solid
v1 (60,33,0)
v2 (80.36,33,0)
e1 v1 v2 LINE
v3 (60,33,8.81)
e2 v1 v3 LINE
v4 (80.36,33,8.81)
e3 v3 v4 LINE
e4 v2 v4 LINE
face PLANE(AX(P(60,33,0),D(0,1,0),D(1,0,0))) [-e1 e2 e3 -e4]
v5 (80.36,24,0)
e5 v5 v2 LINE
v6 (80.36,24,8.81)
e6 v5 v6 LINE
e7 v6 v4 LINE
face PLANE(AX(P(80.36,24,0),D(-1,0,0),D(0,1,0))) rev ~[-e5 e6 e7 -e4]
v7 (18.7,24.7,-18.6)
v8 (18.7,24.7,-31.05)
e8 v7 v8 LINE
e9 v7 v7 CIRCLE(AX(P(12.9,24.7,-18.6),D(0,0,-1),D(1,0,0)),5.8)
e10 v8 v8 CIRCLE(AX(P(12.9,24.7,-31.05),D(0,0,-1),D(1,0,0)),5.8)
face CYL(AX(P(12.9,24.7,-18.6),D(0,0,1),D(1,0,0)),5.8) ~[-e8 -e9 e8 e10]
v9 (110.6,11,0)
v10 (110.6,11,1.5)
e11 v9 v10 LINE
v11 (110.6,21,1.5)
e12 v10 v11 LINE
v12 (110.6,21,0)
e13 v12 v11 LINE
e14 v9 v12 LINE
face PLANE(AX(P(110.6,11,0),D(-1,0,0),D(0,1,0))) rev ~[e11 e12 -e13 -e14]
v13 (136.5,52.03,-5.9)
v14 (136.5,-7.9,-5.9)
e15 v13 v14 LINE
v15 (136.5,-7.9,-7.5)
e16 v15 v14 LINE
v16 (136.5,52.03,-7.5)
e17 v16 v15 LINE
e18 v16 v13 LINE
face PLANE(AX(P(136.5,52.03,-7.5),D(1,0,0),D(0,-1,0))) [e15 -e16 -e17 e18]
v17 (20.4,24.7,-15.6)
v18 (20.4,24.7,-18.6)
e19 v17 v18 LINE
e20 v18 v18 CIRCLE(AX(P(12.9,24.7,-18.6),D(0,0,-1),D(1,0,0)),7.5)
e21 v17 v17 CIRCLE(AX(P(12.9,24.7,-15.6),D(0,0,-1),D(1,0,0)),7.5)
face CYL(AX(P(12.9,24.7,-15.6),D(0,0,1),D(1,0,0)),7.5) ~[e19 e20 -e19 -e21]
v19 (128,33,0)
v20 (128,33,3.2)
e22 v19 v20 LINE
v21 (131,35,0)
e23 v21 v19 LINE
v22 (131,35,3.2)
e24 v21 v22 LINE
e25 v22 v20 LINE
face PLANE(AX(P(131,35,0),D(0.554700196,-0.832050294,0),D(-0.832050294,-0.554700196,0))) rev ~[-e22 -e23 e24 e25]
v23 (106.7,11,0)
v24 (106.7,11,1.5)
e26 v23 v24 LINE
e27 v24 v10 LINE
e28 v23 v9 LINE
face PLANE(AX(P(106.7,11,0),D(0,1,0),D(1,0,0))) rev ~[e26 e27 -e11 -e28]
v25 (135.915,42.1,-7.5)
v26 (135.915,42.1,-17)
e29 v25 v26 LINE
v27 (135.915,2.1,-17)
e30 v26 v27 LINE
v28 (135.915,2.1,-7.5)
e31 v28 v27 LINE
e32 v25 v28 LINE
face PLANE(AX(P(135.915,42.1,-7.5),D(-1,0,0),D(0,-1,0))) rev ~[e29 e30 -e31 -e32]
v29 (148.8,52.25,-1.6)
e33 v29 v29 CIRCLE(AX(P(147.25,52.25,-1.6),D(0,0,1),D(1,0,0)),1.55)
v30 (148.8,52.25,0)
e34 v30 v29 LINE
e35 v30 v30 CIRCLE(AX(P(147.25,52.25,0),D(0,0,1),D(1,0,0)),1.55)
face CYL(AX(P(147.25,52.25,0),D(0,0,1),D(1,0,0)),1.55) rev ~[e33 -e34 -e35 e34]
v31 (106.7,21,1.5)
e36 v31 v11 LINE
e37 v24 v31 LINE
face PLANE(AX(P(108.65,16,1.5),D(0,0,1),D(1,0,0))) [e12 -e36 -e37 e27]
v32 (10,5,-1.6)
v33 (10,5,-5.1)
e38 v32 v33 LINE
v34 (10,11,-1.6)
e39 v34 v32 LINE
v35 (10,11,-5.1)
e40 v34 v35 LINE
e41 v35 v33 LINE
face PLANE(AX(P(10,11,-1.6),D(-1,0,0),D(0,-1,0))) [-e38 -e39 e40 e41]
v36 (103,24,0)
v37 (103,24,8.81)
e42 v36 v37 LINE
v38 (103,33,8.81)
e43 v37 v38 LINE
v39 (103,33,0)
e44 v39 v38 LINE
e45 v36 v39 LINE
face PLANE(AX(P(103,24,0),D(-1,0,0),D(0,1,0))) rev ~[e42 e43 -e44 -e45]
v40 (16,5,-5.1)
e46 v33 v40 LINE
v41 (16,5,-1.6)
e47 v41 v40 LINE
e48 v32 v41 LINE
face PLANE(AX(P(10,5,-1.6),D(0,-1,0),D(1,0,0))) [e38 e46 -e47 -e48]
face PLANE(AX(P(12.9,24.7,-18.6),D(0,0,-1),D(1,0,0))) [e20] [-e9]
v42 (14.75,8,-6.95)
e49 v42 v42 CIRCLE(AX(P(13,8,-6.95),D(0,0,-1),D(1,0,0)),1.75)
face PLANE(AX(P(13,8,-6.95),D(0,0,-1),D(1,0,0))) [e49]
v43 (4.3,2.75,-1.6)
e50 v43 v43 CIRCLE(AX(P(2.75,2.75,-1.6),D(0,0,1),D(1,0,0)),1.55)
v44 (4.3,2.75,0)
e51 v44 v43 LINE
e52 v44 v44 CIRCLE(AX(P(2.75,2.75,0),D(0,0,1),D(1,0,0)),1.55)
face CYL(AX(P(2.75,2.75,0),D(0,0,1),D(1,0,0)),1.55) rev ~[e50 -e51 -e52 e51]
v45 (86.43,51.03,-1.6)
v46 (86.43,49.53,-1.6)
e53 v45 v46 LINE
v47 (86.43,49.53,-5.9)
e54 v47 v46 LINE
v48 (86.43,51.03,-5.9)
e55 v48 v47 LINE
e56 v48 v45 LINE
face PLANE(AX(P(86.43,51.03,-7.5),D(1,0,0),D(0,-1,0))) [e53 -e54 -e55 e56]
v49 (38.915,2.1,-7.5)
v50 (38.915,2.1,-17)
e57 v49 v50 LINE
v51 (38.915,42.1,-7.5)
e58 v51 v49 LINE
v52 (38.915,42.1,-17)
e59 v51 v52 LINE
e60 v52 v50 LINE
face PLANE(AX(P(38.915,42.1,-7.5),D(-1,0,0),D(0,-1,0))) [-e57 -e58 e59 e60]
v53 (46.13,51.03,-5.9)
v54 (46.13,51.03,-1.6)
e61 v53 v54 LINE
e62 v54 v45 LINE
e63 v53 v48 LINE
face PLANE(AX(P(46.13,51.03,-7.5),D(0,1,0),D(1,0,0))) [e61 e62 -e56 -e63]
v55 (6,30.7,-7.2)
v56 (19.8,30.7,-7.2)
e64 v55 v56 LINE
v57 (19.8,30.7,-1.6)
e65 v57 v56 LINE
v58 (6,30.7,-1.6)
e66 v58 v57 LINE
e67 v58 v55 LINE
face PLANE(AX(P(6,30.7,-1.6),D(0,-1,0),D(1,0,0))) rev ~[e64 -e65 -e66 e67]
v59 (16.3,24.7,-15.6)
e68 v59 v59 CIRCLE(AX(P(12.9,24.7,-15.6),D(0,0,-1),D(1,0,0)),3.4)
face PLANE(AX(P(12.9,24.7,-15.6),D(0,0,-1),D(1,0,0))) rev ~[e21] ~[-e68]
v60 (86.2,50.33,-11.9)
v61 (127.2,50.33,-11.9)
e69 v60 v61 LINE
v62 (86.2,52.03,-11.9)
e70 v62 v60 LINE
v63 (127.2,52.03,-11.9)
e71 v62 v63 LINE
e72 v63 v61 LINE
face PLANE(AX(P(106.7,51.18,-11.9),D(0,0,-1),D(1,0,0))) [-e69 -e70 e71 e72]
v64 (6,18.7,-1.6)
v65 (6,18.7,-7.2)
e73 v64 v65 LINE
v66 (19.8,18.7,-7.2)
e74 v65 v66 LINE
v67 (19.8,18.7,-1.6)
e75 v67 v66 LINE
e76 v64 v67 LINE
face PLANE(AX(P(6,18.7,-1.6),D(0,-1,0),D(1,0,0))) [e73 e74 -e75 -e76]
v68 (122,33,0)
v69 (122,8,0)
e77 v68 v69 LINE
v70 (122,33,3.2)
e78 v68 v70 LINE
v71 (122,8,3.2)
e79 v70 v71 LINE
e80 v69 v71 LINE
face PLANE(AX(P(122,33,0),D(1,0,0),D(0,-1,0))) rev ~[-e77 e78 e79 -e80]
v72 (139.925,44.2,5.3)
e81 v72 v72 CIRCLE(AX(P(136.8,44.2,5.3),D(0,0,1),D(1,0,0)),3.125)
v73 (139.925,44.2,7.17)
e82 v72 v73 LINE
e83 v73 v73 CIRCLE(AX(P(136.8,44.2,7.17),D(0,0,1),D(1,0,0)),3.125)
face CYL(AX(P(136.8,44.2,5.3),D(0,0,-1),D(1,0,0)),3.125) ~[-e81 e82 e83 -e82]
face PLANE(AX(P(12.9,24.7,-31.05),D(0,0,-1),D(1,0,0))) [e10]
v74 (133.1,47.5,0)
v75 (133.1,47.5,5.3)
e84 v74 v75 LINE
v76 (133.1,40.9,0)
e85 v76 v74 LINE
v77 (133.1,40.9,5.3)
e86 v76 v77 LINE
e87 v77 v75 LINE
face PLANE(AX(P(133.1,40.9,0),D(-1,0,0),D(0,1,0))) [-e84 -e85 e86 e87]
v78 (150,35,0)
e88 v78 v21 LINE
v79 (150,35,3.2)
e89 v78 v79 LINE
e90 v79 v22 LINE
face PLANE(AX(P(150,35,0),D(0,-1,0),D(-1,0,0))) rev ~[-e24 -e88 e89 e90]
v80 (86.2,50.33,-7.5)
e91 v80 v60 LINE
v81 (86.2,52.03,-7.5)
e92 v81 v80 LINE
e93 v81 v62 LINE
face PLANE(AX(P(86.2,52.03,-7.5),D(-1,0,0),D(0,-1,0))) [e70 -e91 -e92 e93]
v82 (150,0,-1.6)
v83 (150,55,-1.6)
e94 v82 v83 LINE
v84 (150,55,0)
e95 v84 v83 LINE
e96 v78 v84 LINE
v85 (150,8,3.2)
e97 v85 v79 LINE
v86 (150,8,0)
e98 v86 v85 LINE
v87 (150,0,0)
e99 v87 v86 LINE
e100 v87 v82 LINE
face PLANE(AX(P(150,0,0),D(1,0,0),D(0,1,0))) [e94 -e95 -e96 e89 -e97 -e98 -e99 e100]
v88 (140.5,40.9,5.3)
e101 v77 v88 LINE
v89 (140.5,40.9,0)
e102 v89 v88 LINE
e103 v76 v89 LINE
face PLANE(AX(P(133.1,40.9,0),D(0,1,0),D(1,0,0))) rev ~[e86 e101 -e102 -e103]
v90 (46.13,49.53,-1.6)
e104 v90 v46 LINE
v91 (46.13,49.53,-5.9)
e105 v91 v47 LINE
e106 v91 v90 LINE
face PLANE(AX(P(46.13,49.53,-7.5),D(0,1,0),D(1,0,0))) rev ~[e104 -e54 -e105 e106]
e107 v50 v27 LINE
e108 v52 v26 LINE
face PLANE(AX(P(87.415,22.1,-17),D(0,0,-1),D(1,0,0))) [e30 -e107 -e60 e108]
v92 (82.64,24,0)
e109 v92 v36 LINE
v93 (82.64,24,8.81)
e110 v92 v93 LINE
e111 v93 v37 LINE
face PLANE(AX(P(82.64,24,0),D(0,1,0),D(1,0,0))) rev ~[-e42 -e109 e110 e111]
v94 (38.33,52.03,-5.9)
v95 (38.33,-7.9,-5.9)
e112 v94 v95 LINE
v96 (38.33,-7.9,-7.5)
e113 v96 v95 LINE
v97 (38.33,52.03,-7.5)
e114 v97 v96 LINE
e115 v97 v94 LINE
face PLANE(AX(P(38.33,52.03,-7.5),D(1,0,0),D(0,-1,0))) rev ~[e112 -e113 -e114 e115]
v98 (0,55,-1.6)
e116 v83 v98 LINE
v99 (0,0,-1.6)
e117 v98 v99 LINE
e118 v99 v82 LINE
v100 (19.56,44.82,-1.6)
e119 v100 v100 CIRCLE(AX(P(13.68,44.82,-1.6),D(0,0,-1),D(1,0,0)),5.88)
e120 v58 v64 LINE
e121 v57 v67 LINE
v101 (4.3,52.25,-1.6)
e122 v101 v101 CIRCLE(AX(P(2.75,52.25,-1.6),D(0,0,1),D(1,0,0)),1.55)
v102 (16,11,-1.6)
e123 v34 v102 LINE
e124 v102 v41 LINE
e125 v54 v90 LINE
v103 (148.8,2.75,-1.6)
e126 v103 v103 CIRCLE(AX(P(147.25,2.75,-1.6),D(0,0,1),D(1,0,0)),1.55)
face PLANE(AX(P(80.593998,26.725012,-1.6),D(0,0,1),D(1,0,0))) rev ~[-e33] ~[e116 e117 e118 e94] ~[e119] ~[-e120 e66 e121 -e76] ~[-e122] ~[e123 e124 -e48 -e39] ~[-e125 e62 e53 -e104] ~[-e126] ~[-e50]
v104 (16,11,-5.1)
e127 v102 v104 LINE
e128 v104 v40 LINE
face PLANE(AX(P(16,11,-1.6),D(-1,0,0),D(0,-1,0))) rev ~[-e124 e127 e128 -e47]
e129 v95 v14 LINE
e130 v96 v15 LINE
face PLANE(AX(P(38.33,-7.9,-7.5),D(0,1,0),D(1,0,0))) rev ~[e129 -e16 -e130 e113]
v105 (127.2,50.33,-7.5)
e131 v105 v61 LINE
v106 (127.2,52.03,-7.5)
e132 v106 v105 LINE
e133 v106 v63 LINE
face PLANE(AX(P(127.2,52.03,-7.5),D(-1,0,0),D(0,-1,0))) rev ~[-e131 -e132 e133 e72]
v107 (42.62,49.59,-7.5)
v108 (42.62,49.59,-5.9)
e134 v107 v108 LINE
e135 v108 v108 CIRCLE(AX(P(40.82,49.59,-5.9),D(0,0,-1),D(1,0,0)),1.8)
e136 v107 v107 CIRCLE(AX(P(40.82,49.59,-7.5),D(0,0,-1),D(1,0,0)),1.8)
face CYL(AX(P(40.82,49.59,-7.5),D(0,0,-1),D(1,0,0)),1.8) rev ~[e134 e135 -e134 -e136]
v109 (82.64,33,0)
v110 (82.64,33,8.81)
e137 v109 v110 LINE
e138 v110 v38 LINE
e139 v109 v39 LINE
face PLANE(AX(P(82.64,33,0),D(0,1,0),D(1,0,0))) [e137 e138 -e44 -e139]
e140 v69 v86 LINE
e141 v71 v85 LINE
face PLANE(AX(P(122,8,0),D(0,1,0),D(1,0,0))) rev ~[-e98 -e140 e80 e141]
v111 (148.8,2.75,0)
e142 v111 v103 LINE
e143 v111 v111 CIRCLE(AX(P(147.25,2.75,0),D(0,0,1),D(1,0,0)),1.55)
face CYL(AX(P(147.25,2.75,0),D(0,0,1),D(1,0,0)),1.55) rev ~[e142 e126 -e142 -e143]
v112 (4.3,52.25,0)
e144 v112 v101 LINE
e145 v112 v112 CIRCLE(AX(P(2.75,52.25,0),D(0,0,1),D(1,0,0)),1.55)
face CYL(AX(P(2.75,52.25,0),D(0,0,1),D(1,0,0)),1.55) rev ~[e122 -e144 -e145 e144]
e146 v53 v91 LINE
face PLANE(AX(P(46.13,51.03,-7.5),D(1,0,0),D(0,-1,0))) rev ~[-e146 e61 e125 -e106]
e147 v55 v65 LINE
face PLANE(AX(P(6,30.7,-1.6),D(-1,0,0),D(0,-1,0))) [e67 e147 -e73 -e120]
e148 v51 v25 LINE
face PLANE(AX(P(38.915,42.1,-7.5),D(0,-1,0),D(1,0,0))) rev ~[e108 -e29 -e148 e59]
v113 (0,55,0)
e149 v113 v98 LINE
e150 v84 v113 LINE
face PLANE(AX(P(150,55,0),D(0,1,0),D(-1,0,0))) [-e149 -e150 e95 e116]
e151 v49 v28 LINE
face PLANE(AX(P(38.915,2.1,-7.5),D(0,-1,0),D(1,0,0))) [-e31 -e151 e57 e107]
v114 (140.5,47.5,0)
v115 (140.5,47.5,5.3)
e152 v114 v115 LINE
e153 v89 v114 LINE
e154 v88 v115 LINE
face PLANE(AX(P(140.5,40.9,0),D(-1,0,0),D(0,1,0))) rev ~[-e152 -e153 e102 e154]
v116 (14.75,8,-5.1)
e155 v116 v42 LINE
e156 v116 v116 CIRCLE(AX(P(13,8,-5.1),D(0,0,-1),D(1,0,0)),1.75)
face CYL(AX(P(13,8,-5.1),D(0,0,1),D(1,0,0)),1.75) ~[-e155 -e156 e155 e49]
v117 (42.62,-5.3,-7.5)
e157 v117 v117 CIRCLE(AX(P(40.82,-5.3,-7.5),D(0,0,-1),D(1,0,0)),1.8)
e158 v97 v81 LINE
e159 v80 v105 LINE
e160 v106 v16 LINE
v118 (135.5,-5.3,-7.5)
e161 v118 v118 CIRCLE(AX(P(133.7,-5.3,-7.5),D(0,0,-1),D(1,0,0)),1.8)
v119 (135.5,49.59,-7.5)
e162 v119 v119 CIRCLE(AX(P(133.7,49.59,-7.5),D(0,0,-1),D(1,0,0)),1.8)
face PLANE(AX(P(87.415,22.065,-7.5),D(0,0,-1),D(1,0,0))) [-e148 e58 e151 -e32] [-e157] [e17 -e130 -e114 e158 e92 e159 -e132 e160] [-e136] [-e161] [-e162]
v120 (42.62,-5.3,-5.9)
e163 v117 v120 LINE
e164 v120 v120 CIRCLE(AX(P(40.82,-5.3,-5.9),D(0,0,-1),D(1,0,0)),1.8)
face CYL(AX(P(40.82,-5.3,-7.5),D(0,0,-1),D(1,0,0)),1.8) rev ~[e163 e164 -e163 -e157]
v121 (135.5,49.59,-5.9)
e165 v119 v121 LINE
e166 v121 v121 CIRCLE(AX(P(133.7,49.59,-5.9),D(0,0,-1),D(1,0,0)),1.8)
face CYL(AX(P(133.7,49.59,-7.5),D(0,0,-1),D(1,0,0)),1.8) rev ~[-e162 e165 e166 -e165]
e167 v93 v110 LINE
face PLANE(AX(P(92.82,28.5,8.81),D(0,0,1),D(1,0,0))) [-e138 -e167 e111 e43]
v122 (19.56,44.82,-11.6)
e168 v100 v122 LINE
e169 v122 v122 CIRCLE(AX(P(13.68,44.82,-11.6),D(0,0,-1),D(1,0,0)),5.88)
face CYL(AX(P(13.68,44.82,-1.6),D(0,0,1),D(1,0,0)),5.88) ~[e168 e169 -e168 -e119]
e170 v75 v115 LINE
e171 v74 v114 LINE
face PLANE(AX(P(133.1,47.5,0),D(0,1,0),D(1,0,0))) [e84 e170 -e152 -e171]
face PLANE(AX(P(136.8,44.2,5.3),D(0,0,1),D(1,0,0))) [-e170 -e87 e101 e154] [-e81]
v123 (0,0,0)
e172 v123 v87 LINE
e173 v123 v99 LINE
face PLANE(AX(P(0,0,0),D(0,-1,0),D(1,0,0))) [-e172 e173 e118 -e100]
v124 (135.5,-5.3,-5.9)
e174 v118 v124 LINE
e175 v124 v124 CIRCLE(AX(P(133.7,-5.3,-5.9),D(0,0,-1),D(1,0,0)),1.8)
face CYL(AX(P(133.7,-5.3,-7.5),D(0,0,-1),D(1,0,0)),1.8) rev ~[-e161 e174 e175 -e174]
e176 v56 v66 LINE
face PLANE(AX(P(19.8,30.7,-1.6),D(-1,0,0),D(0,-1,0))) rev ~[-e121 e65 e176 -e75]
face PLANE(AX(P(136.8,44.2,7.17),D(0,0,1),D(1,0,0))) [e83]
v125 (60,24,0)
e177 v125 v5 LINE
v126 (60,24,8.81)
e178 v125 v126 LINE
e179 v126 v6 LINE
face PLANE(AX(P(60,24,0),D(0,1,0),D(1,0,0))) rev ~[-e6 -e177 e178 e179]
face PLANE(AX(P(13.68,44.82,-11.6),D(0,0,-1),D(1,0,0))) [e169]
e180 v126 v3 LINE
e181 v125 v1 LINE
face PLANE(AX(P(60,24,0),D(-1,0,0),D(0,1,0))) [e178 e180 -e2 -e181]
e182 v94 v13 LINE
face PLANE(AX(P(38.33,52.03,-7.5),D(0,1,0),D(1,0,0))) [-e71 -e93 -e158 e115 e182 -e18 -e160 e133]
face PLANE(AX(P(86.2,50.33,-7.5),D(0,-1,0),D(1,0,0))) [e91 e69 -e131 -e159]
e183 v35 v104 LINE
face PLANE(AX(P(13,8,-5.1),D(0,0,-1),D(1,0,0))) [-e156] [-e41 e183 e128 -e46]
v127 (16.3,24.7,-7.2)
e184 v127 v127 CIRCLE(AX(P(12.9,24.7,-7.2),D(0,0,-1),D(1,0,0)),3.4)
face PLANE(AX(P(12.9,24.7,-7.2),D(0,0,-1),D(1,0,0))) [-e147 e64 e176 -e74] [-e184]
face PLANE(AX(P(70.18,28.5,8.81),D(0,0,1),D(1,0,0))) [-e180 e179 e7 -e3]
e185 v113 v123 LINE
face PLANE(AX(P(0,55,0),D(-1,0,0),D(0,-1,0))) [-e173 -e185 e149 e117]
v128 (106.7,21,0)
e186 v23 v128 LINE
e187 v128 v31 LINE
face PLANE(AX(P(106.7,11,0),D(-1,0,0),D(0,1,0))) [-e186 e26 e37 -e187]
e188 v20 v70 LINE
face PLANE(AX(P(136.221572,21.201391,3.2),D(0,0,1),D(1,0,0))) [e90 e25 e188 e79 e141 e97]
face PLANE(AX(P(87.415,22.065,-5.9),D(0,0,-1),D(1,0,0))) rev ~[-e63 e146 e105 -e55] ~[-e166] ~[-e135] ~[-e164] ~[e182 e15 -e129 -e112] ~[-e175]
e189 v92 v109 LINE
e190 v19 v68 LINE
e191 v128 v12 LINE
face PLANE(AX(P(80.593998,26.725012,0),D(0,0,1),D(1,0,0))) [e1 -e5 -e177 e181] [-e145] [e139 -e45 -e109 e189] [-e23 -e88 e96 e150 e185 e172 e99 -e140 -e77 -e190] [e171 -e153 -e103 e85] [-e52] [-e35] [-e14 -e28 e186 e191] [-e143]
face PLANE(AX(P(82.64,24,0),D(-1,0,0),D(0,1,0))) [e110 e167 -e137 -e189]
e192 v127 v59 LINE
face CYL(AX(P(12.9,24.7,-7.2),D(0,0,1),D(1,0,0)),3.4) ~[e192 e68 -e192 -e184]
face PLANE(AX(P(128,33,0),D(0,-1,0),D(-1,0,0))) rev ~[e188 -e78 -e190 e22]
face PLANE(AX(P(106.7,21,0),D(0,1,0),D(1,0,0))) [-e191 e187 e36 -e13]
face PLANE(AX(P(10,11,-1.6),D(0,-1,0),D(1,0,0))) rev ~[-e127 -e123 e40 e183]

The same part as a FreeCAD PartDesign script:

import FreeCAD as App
import Part
import Sketcher

doc = App.newDocument("Part")
body = doc.addObject("PartDesign::Body", "Body")

# Sketch on XY plane
sketch1 = doc.addObject("Sketcher::SketchObject", "Sketch")
body.addObject(sketch1)
sketch1.AttachmentSupport = (doc.XY_Plane, [""])
sketch1.MapMode = "FlatFace"
sketch1.addGeometry(Part.LineSegment(App.Vector(0, 55, 0), App.Vector(0, 0, 0)), False)
sketch1.addGeometry(Part.LineSegment(App.Vector(0, 0, 0), App.Vector(150, 0, 0)), False)
sketch1.addGeometry(Part.LineSegment(App.Vector(150, 0, 0), App.Vector(150, 55, 0)), False)
sketch1.addGeometry(Part.LineSegment(App.Vector(150, 55, 0), App.Vector(0, 55, 0)), False)
sketch1.addGeometry(Part.Circle(App.Vector(2.75, 2.75, 0), App.Vector(0, 0, 1), 1.55), False)
sketch1.addGeometry(Part.Circle(App.Vector(147.25, 2.75, 0), App.Vector(0, 0, 1), 1.55), False)
sketch1.addGeometry(Part.Circle(App.Vector(2.75, 52.25, 0), App.Vector(0, 0, 1), 1.55), False)
sketch1.addGeometry(Part.Circle(App.Vector(147.25, 52.25, 0), App.Vector(0, 0, 1), 1.55), False)
sketch1.addConstraint(Sketcher.Constraint("Coincident", 0, 2, 1, 1))
sketch1.addConstraint(Sketcher.Constraint("Coincident", 1, 2, 2, 1))
sketch1.addConstraint(Sketcher.Constraint("Coincident", 2, 2, 3, 1))
sketch1.addConstraint(Sketcher.Constraint("Coincident", 3, 2, 0, 1))
sketch1.addConstraint(Sketcher.Constraint("Vertical", 0))
sketch1.addConstraint(Sketcher.Constraint("Horizontal", 1))
sketch1.addConstraint(Sketcher.Constraint("Vertical", 2))
sketch1.addConstraint(Sketcher.Constraint("Horizontal", 3))
sketch1.addConstraint(Sketcher.Constraint("Coincident", 0, 2, -1, 1))
sketch1.addConstraint(Sketcher.Constraint("Equal", 4, 5))
sketch1.addConstraint(Sketcher.Constraint("Equal", 5, 6))
sketch1.addConstraint(Sketcher.Constraint("Equal", 6, 7))
sketch1.addConstraint(Sketcher.Constraint("Horizontal", 4, 3, 5, 3))
sketch1.addConstraint(Sketcher.Constraint("Horizontal", 6, 3, 7, 3))
sketch1.addConstraint(Sketcher.Constraint("Vertical", 4, 3, 6, 3))
sketch1.addConstraint(Sketcher.Constraint("Vertical", 5, 3, 7, 3))
sketch1.addConstraint(Sketcher.Constraint("Diameter", 4, 3.1))
sketch1.addConstraint(Sketcher.Constraint("DistanceX", 1, 1, 1, 2, 150.0))
sketch1.addConstraint(Sketcher.Constraint("DistanceY", 0, 2, 0, 1, 55.0))
sketch1.addConstraint(Sketcher.Constraint("DistanceX", 4, 3, 5, 3, 144.5))
sketch1.addConstraint(Sketcher.Constraint("DistanceY", 4, 3, 6, 3, 49.5))
sketch1.addConstraint(Sketcher.Constraint("DistanceX", -1, 1, 4, 3, 2.75))
sketch1.addConstraint(Sketcher.Constraint("DistanceY", -1, 1, 4, 3, 2.75))
pad1 = doc.addObject("PartDesign::Pad", "Pad")
body.addObject(pad1)
pad1.Profile = sketch1
pad1.Length = 1.6
pad1.Reversed = True

# Sketch on XY plane
sketch2 = doc.addObject("Sketcher::SketchObject", "Sketch001")
body.addObject(sketch2)
sketch2.AttachmentSupport = (doc.XY_Plane, [""])
sketch2.MapMode = "FlatFace"
sketch2.addGeometry(Part.LineSegment(App.Vector(60, 33, 0), App.Vector(60, 24, 0)), False)
sketch2.addGeometry(Part.LineSegment(App.Vector(60, 24, 0), App.Vector(80.36, 24, 0)), False)
sketch2.addGeometry(Part.LineSegment(App.Vector(80.36, 24, 0), App.Vector(80.36, 33, 0)), False)
sketch2.addGeometry(Part.LineSegment(App.Vector(80.36, 33, 0), App.Vector(60, 33, 0)), False)
sketch2.addGeometry(Part.LineSegment(App.Vector(82.64, 33, 0), App.Vector(82.64, 24, 0)), False)
sketch2.addGeometry(Part.LineSegment(App.Vector(82.64, 24, 0), App.Vector(103, 24, 0)), False)
sketch2.addGeometry(Part.LineSegment(App.Vector(103, 24, 0), App.Vector(103, 33, 0)), False)
sketch2.addGeometry(Part.LineSegment(App.Vector(103, 33, 0), App.Vector(82.64, 33, 0)), False)
sketch2.addConstraint(Sketcher.Constraint("Coincident", 0, 2, 1, 1))
sketch2.addConstraint(Sketcher.Constraint("Coincident", 1, 2, 2, 1))
sketch2.addConstraint(Sketcher.Constraint("Coincident", 2, 2, 3, 1))
sketch2.addConstraint(Sketcher.Constraint("Coincident", 3, 2, 0, 1))
sketch2.addConstraint(Sketcher.Constraint("Coincident", 4, 2, 5, 1))
sketch2.addConstraint(Sketcher.Constraint("Coincident", 5, 2, 6, 1))
sketch2.addConstraint(Sketcher.Constraint("Coincident", 6, 2, 7, 1))
sketch2.addConstraint(Sketcher.Constraint("Coincident", 7, 2, 4, 1))
sketch2.addConstraint(Sketcher.Constraint("Vertical", 0))
sketch2.addConstraint(Sketcher.Constraint("Horizontal", 1))
sketch2.addConstraint(Sketcher.Constraint("Vertical", 2))
sketch2.addConstraint(Sketcher.Constraint("Horizontal", 3))
sketch2.addConstraint(Sketcher.Constraint("Vertical", 4))
sketch2.addConstraint(Sketcher.Constraint("Horizontal", 5))
sketch2.addConstraint(Sketcher.Constraint("Vertical", 6))
sketch2.addConstraint(Sketcher.Constraint("Horizontal", 7))
sketch2.addConstraint(Sketcher.Constraint("Horizontal", 1, 2, 4, 2))
sketch2.addConstraint(Sketcher.Constraint("Horizontal", 3, 2, 6, 2))
sketch2.addConstraint(Sketcher.Constraint("Equal", 3, 5))
sketch2.addConstraint(Sketcher.Constraint("DistanceY", 0, 2, 0, 1, 9.0))
sketch2.addConstraint(Sketcher.Constraint("DistanceX", -1, 1, 0, 2, 60.0))
sketch2.addConstraint(Sketcher.Constraint("DistanceY", -1, 1, 0, 2, 24.0))
sketch2.addConstraint(Sketcher.Constraint("DistanceX", -1, 1, 5, 2, 103.0))
sketch2.addConstraint(Sketcher.Constraint("DistanceX", 1, 1, 1, 2, 20.36))
pad2 = doc.addObject("PartDesign::Pad", "Pad001")
body.addObject(pad2)
pad2.Profile = sketch2
pad2.Length = 8.81

# Sketch on XY plane
sketch3 = doc.addObject("Sketcher::SketchObject", "Sketch002")
body.addObject(sketch3)
sketch3.AttachmentSupport = (doc.XY_Plane, [""])
sketch3.MapMode = "FlatFace"
sketch3.addGeometry(Part.LineSegment(App.Vector(122, 8, 0), App.Vector(150, 8, 0)), False)
sketch3.addGeometry(Part.LineSegment(App.Vector(150, 8, 0), App.Vector(150, 35, 0)), False)
sketch3.addGeometry(Part.LineSegment(App.Vector(150, 35, 0), App.Vector(131, 35, 0)), False)
sketch3.addGeometry(Part.LineSegment(App.Vector(131, 35, 0), App.Vector(128, 33, 0)), False)
sketch3.addGeometry(Part.LineSegment(App.Vector(128, 33, 0), App.Vector(122, 33, 0)), False)
sketch3.addGeometry(Part.LineSegment(App.Vector(122, 33, 0), App.Vector(122, 8, 0)), False)
sketch3.addConstraint(Sketcher.Constraint("Coincident", 0, 2, 1, 1))
sketch3.addConstraint(Sketcher.Constraint("Coincident", 1, 2, 2, 1))
sketch3.addConstraint(Sketcher.Constraint("Coincident", 2, 2, 3, 1))
sketch3.addConstraint(Sketcher.Constraint("Coincident", 3, 2, 4, 1))
sketch3.addConstraint(Sketcher.Constraint("Coincident", 4, 2, 5, 1))
sketch3.addConstraint(Sketcher.Constraint("Coincident", 5, 2, 0, 1))
sketch3.addConstraint(Sketcher.Constraint("Horizontal", 0))
sketch3.addConstraint(Sketcher.Constraint("Vertical", 1))
sketch3.addConstraint(Sketcher.Constraint("Horizontal", 2))
sketch3.addConstraint(Sketcher.Constraint("Horizontal", 4))
sketch3.addConstraint(Sketcher.Constraint("Vertical", 5))
sketch3.addConstraint(Sketcher.Constraint("DistanceX", 0, 1, 0, 2, 28.0))
sketch3.addConstraint(Sketcher.Constraint("DistanceX", 2, 2, 2, 1, 19.0))
sketch3.addConstraint(Sketcher.Constraint("DistanceX", 4, 2, 4, 1, 6.0))
sketch3.addConstraint(Sketcher.Constraint("DistanceY", 1, 1, 1, 2, 27.0))
sketch3.addConstraint(Sketcher.Constraint("DistanceY", 5, 2, 5, 1, 25.0))
sketch3.addConstraint(Sketcher.Constraint("DistanceX", -1, 1, 0, 2, 150.0))
sketch3.addConstraint(Sketcher.Constraint("DistanceY", -1, 1, 0, 2, 8.0))
pad3 = doc.addObject("PartDesign::Pad", "Pad002")
body.addObject(pad3)
pad3.Profile = sketch3
pad3.Length = 3.2

# Sketch on XY plane
sketch4 = doc.addObject("Sketcher::SketchObject", "Sketch003")
body.addObject(sketch4)
sketch4.AttachmentSupport = (doc.XY_Plane, [""])
sketch4.MapMode = "FlatFace"
sketch4.addGeometry(Part.LineSegment(App.Vector(106.7, 21, 0), App.Vector(106.7, 11, 0)), False)
sketch4.addGeometry(Part.LineSegment(App.Vector(106.7, 11, 0), App.Vector(110.6, 11, 0)), False)
sketch4.addGeometry(Part.LineSegment(App.Vector(110.6, 11, 0), App.Vector(110.6, 21, 0)), False)
sketch4.addGeometry(Part.LineSegment(App.Vector(110.6, 21, 0), App.Vector(106.7, 21, 0)), False)
sketch4.addConstraint(Sketcher.Constraint("Coincident", 0, 2, 1, 1))
sketch4.addConstraint(Sketcher.Constraint("Coincident", 1, 2, 2, 1))
sketch4.addConstraint(Sketcher.Constraint("Coincident", 2, 2, 3, 1))
sketch4.addConstraint(Sketcher.Constraint("Coincident", 3, 2, 0, 1))
sketch4.addConstraint(Sketcher.Constraint("Vertical", 0))
sketch4.addConstraint(Sketcher.Constraint("Horizontal", 1))
sketch4.addConstraint(Sketcher.Constraint("Vertical", 2))
sketch4.addConstraint(Sketcher.Constraint("Horizontal", 3))
sketch4.addConstraint(Sketcher.Constraint("DistanceY", 0, 2, 0, 1, 10.0))
sketch4.addConstraint(Sketcher.Constraint("DistanceX", 1, 1, 1, 2, 3.9))
sketch4.addConstraint(Sketcher.Constraint("DistanceY", -1, 1, 0, 2, 11.0))
sketch4.addConstraint(Sketcher.Constraint("DistanceX", -1, 1, 0, 2, 106.7))
pad4 = doc.addObject("PartDesign::Pad", "Pad003")
body.addObject(pad4)
pad4.Profile = sketch4
pad4.Length = 1.5

# Sketch on XY plane
sketch5 = doc.addObject("Sketcher::SketchObject", "Sketch004")
body.addObject(sketch5)
sketch5.AttachmentSupport = (doc.XY_Plane, [""])
sketch5.MapMode = "FlatFace"
sketch5.addGeometry(Part.LineSegment(App.Vector(133.1, 47.5, 0), App.Vector(133.1, 40.9, 0)), False)
sketch5.addGeometry(Part.LineSegment(App.Vector(133.1, 40.9, 0), App.Vector(140.5, 40.9, 0)), False)
sketch5.addGeometry(Part.LineSegment(App.Vector(140.5, 40.9, 0), App.Vector(140.5, 47.5, 0)), False)
sketch5.addGeometry(Part.LineSegment(App.Vector(140.5, 47.5, 0), App.Vector(133.1, 47.5, 0)), False)
sketch5.addConstraint(Sketcher.Constraint("Coincident", 0, 2, 1, 1))
sketch5.addConstraint(Sketcher.Constraint("Coincident", 1, 2, 2, 1))
sketch5.addConstraint(Sketcher.Constraint("Coincident", 2, 2, 3, 1))
sketch5.addConstraint(Sketcher.Constraint("Coincident", 3, 2, 0, 1))
sketch5.addConstraint(Sketcher.Constraint("Vertical", 0))
sketch5.addConstraint(Sketcher.Constraint("Horizontal", 1))
sketch5.addConstraint(Sketcher.Constraint("Vertical", 2))
sketch5.addConstraint(Sketcher.Constraint("Horizontal", 3))
sketch5.addConstraint(Sketcher.Constraint("DistanceX", 1, 1, 1, 2, 7.4))
sketch5.addConstraint(Sketcher.Constraint("DistanceY", 0, 2, 0, 1, 6.6))
sketch5.addConstraint(Sketcher.Constraint("DistanceX", -1, 1, 0, 2, 133.1))
sketch5.addConstraint(Sketcher.Constraint("DistanceY", -1, 1, 0, 2, 40.9))
pad5 = doc.addObject("PartDesign::Pad", "Pad004")
body.addObject(pad5)
pad5.Profile = sketch5
pad5.Length = 5.3

# Sketch on XY plane
sketch6 = doc.addObject("Sketcher::SketchObject", "Sketch005")
body.addObject(sketch6)
sketch6.AttachmentSupport = (doc.XY_Plane, [""])
sketch6.MapMode = "FlatFace"
sketch6.AttachmentOffset = App.Placement(App.Vector(0, 0, 5.3), App.Rotation())
sketch6.addGeometry(Part.Circle(App.Vector(136.8, 44.2, 0), App.Vector(0, 0, 1), 3.125), False)
sketch6.addConstraint(Sketcher.Constraint("Diameter", 0, 6.25))
sketch6.addConstraint(Sketcher.Constraint("DistanceX", -1, 1, 0, 3, 136.8))
sketch6.addConstraint(Sketcher.Constraint("DistanceY", -1, 1, 0, 3, 44.2))
pad6 = doc.addObject("PartDesign::Pad", "Pad005")
body.addObject(pad6)
pad6.Profile = sketch6
pad6.Length = 1.87

# Sketch on XY plane
sketch7 = doc.addObject("Sketcher::SketchObject", "Sketch006")
body.addObject(sketch7)
sketch7.AttachmentSupport = (doc.XY_Plane, [""])
sketch7.MapMode = "FlatFace"
sketch7.AttachmentOffset = App.Placement(App.Vector(0, 0, -1.6), App.Rotation())
sketch7.addGeometry(Part.Circle(App.Vector(13.68, 44.82, 0), App.Vector(0, 0, 1), 5.88), False)
sketch7.addConstraint(Sketcher.Constraint("Diameter", 0, 11.76))
sketch7.addConstraint(Sketcher.Constraint("DistanceX", -1, 1, 0, 3, 13.68))
sketch7.addConstraint(Sketcher.Constraint("DistanceY", -1, 1, 0, 3, 44.82))
pad7 = doc.addObject("PartDesign::Pad", "Pad006")
body.addObject(pad7)
pad7.Profile = sketch7
pad7.Length = 10
pad7.Reversed = True

# Sketch on XY plane
sketch8 = doc.addObject("Sketcher::SketchObject", "Sketch007")
body.addObject(sketch8)
sketch8.AttachmentSupport = (doc.XY_Plane, [""])
sketch8.MapMode = "FlatFace"
sketch8.AttachmentOffset = App.Placement(App.Vector(0, 0, -1.6), App.Rotation())
sketch8.addGeometry(Part.LineSegment(App.Vector(6, 18.7, 0), App.Vector(6, 30.7, 0)), False)
sketch8.addGeometry(Part.LineSegment(App.Vector(6, 30.7, 0), App.Vector(19.8, 30.7, 0)), False)
sketch8.addGeometry(Part.LineSegment(App.Vector(19.8, 30.7, 0), App.Vector(19.8, 18.7, 0)), False)
sketch8.addGeometry(Part.LineSegment(App.Vector(19.8, 18.7, 0), App.Vector(6, 18.7, 0)), False)
sketch8.addConstraint(Sketcher.Constraint("Coincident", 0, 2, 1, 1))
sketch8.addConstraint(Sketcher.Constraint("Coincident", 1, 2, 2, 1))
sketch8.addConstraint(Sketcher.Constraint("Coincident", 2, 2, 3, 1))
sketch8.addConstraint(Sketcher.Constraint("Coincident", 3, 2, 0, 1))
sketch8.addConstraint(Sketcher.Constraint("Vertical", 0))
sketch8.addConstraint(Sketcher.Constraint("Horizontal", 1))
sketch8.addConstraint(Sketcher.Constraint("Vertical", 2))
sketch8.addConstraint(Sketcher.Constraint("Horizontal", 3))
sketch8.addConstraint(Sketcher.Constraint("DistanceY", 0, 1, 0, 2, 12.0))
sketch8.addConstraint(Sketcher.Constraint("DistanceX", 1, 1, 1, 2, 13.8))
sketch8.addConstraint(Sketcher.Constraint("DistanceX", -1, 1, 0, 2, 6.0))
sketch8.addConstraint(Sketcher.Constraint("DistanceY", -1, 1, 0, 2, 30.7))
pad8 = doc.addObject("PartDesign::Pad", "Pad007")
body.addObject(pad8)
pad8.Profile = sketch8
pad8.Length = 5.6
pad8.Reversed = True

# Sketch on XY plane
sketch9 = doc.addObject("Sketcher::SketchObject", "Sketch008")
body.addObject(sketch9)
sketch9.AttachmentSupport = (doc.XY_Plane, [""])
sketch9.MapMode = "FlatFace"
sketch9.AttachmentOffset = App.Placement(App.Vector(0, 0, -7.2), App.Rotation())
sketch9.addGeometry(Part.Circle(App.Vector(12.9, 24.7, 0), App.Vector(0, 0, 1), 3.4), False)
sketch9.addConstraint(Sketcher.Constraint("Diameter", 0, 6.8))
sketch9.addConstraint(Sketcher.Constraint("DistanceX", -1, 1, 0, 3, 12.9))
sketch9.addConstraint(Sketcher.Constraint("DistanceY", -1, 1, 0, 3, 24.7))
pad9 = doc.addObject("PartDesign::Pad", "Pad008")
body.addObject(pad9)
pad9.Profile = sketch9
pad9.Length = 8.4
pad9.Reversed = True

# Sketch on XY plane
sketch10 = doc.addObject("Sketcher::SketchObject", "Sketch009")
body.addObject(sketch10)
sketch10.AttachmentSupport = (doc.XY_Plane, [""])
sketch10.MapMode = "FlatFace"
sketch10.AttachmentOffset = App.Placement(App.Vector(0, 0, -15.6), App.Rotation())
sketch10.addGeometry(Part.Circle(App.Vector(12.9, 24.7, 0), App.Vector(0, 0, 1), 7.5), False)
sketch10.addConstraint(Sketcher.Constraint("Diameter", 0, 15.0))
sketch10.addConstraint(Sketcher.Constraint("DistanceX", -1, 1, 0, 3, 12.9))
sketch10.addConstraint(Sketcher.Constraint("DistanceY", -1, 1, 0, 3, 24.7))
pad10 = doc.addObject("PartDesign::Pad", "Pad009")
body.addObject(pad10)
pad10.Profile = sketch10
pad10.Length = 3
pad10.Reversed = True

# Sketch on XY plane
sketch11 = doc.addObject("Sketcher::SketchObject", "Sketch010")
body.addObject(sketch11)
sketch11.AttachmentSupport = (doc.XY_Plane, [""])
sketch11.MapMode = "FlatFace"
sketch11.AttachmentOffset = App.Placement(App.Vector(0, 0, -18.6), App.Rotation())
sketch11.addGeometry(Part.Circle(App.Vector(12.9, 24.7, 0), App.Vector(0, 0, 1), 5.8), False)
sketch11.addConstraint(Sketcher.Constraint("Diameter", 0, 11.6))
sketch11.addConstraint(Sketcher.Constraint("DistanceX", -1, 1, 0, 3, 12.9))
sketch11.addConstraint(Sketcher.Constraint("DistanceY", -1, 1, 0, 3, 24.7))
pad11 = doc.addObject("PartDesign::Pad", "Pad010")
body.addObject(pad11)
pad11.Profile = sketch11
pad11.Length = 12.45
pad11.Reversed = True

# Sketch on XY plane
sketch12 = doc.addObject("Sketcher::SketchObject", "Sketch011")
body.addObject(sketch12)
sketch12.AttachmentSupport = (doc.XY_Plane, [""])
sketch12.MapMode = "FlatFace"
sketch12.AttachmentOffset = App.Placement(App.Vector(0, 0, -1.6), App.Rotation())
sketch12.addGeometry(Part.LineSegment(App.Vector(10, 5, 0), App.Vector(10, 11, 0)), False)
sketch12.addGeometry(Part.LineSegment(App.Vector(10, 11, 0), App.Vector(16, 11, 0)), False)
sketch12.addGeometry(Part.LineSegment(App.Vector(16, 11, 0), App.Vector(16, 5, 0)), False)
sketch12.addGeometry(Part.LineSegment(App.Vector(16, 5, 0), App.Vector(10, 5, 0)), False)
sketch12.addConstraint(Sketcher.Constraint("Coincident", 0, 2, 1, 1))
sketch12.addConstraint(Sketcher.Constraint("Coincident", 1, 2, 2, 1))
sketch12.addConstraint(Sketcher.Constraint("Coincident", 2, 2, 3, 1))
sketch12.addConstraint(Sketcher.Constraint("Coincident", 3, 2, 0, 1))
sketch12.addConstraint(Sketcher.Constraint("Vertical", 0))
sketch12.addConstraint(Sketcher.Constraint("Horizontal", 1))
sketch12.addConstraint(Sketcher.Constraint("Vertical", 2))
sketch12.addConstraint(Sketcher.Constraint("Horizontal", 3))
sketch12.addConstraint(Sketcher.Constraint("Equal", 3, 0))
sketch12.addConstraint(Sketcher.Constraint("DistanceX", 1, 1, 1, 2, 6.0))
sketch12.addConstraint(Sketcher.Constraint("DistanceX", -1, 1, 0, 2, 10.0))
sketch12.addConstraint(Sketcher.Constraint("DistanceY", -1, 1, 0, 2, 11.0))
pad12 = doc.addObject("PartDesign::Pad", "Pad011")
body.addObject(pad12)
pad12.Profile = sketch12
pad12.Length = 3.5
pad12.Reversed = True

# Sketch on XY plane
sketch13 = doc.addObject("Sketcher::SketchObject", "Sketch012")
body.addObject(sketch13)
sketch13.AttachmentSupport = (doc.XY_Plane, [""])
sketch13.MapMode = "FlatFace"
sketch13.AttachmentOffset = App.Placement(App.Vector(0, 0, -5.1), App.Rotation())
sketch13.addGeometry(Part.Circle(App.Vector(13, 8, 0), App.Vector(0, 0, 1), 1.75), False)
sketch13.addConstraint(Sketcher.Constraint("Diameter", 0, 3.5))
sketch13.addConstraint(Sketcher.Constraint("DistanceX", -1, 1, 0, 3, 13.0))
sketch13.addConstraint(Sketcher.Constraint("DistanceY", -1, 1, 0, 3, 8.0))
pad13 = doc.addObject("PartDesign::Pad", "Pad012")
body.addObject(pad13)
pad13.Profile = sketch13
pad13.Length = 1.85
pad13.Reversed = True

# Sketch on XY plane
sketch14 = doc.addObject("Sketcher::SketchObject", "Sketch013")
body.addObject(sketch14)
sketch14.AttachmentSupport = (doc.XY_Plane, [""])
sketch14.MapMode = "FlatFace"
sketch14.AttachmentOffset = App.Placement(App.Vector(0, 0, -7.5), App.Rotation())
sketch14.addGeometry(Part.LineSegment(App.Vector(46.13, 49.53, 0), App.Vector(46.13, 51.03, 0)), False)
sketch14.addGeometry(Part.LineSegment(App.Vector(46.13, 51.03, 0), App.Vector(86.43, 51.03, 0)), False)
sketch14.addGeometry(Part.LineSegment(App.Vector(86.43, 51.03, 0), App.Vector(86.43, 49.53, 0)), False)
sketch14.addGeometry(Part.LineSegment(App.Vector(86.43, 49.53, 0), App.Vector(46.13, 49.53, 0)), False)
sketch14.addConstraint(Sketcher.Constraint("Coincident", 0, 2, 1, 1))
sketch14.addConstraint(Sketcher.Constraint("Coincident", 1, 2, 2, 1))
sketch14.addConstraint(Sketcher.Constraint("Coincident", 2, 2, 3, 1))
sketch14.addConstraint(Sketcher.Constraint("Coincident", 3, 2, 0, 1))
sketch14.addConstraint(Sketcher.Constraint("Vertical", 0))
sketch14.addConstraint(Sketcher.Constraint("Horizontal", 1))
sketch14.addConstraint(Sketcher.Constraint("Vertical", 2))
sketch14.addConstraint(Sketcher.Constraint("Horizontal", 3))
sketch14.addConstraint(Sketcher.Constraint("DistanceX", 1, 1, 1, 2, 40.3))
sketch14.addConstraint(Sketcher.Constraint("DistanceY", 0, 1, 0, 2, 1.5))
sketch14.addConstraint(Sketcher.Constraint("DistanceX", -1, 1, 0, 2, 46.13))
sketch14.addConstraint(Sketcher.Constraint("DistanceY", -1, 1, 0, 2, 51.03))
pad14 = doc.addObject("PartDesign::Pad", "Pad013")
body.addObject(pad14)
pad14.Profile = sketch14
pad14.Type = "UpToLast"

# Sketch on XY plane
sketch15 = doc.addObject("Sketcher::SketchObject", "Sketch014")
body.addObject(sketch15)
sketch15.AttachmentSupport = (doc.XY_Plane, [""])
sketch15.MapMode = "FlatFace"
sketch15.AttachmentOffset = App.Placement(App.Vector(0, 0, -7.5), App.Rotation())
sketch15.addGeometry(Part.LineSegment(App.Vector(38.33, -7.9, 0), App.Vector(38.33, 52.03, 0)), False)
sketch15.addGeometry(Part.LineSegment(App.Vector(38.33, 52.03, 0), App.Vector(136.5, 52.03, 0)), False)
sketch15.addGeometry(Part.LineSegment(App.Vector(136.5, 52.03, 0), App.Vector(136.5, -7.9, 0)), False)
sketch15.addGeometry(Part.LineSegment(App.Vector(136.5, -7.9, 0), App.Vector(38.33, -7.9, 0)), False)
sketch15.addGeometry(Part.Circle(App.Vector(40.82, 49.59, 0), App.Vector(0, 0, 1), 1.8), False)
sketch15.addGeometry(Part.LineSegment(App.Vector(86.43, 51.03, 0), App.Vector(46.13, 51.03, 0)), False)
sketch15.addGeometry(Part.LineSegment(App.Vector(46.13, 51.03, 0), App.Vector(46.13, 49.53, 0)), False)
sketch15.addGeometry(Part.LineSegment(App.Vector(46.13, 49.53, 0), App.Vector(86.43, 49.53, 0)), False)
sketch15.addGeometry(Part.LineSegment(App.Vector(86.43, 49.53, 0), App.Vector(86.43, 51.03, 0)), False)
sketch15.addGeometry(Part.Circle(App.Vector(133.7, 49.59, 0), App.Vector(0, 0, 1), 1.8), False)
sketch15.addGeometry(Part.Circle(App.Vector(40.82, -5.3, 0), App.Vector(0, 0, 1), 1.8), False)
sketch15.addGeometry(Part.Circle(App.Vector(133.7, -5.3, 0), App.Vector(0, 0, 1), 1.8), False)
sketch15.addConstraint(Sketcher.Constraint("Coincident", 0, 2, 1, 1))
sketch15.addConstraint(Sketcher.Constraint("Coincident", 1, 2, 2, 1))
sketch15.addConstraint(Sketcher.Constraint("Coincident", 2, 2, 3, 1))
sketch15.addConstraint(Sketcher.Constraint("Coincident", 3, 2, 0, 1))
sketch15.addConstraint(Sketcher.Constraint("Coincident", 5, 2, 6, 1))
sketch15.addConstraint(Sketcher.Constraint("Coincident", 6, 2, 7, 1))
sketch15.addConstraint(Sketcher.Constraint("Coincident", 7, 2, 8, 1))
sketch15.addConstraint(Sketcher.Constraint("Coincident", 8, 2, 5, 1))
sketch15.addConstraint(Sketcher.Constraint("Vertical", 0))
sketch15.addConstraint(Sketcher.Constraint("Horizontal", 1))
sketch15.addConstraint(Sketcher.Constraint("Vertical", 2))
sketch15.addConstraint(Sketcher.Constraint("Horizontal", 3))
sketch15.addConstraint(Sketcher.Constraint("Horizontal", 5))
sketch15.addConstraint(Sketcher.Constraint("Vertical", 6))
sketch15.addConstraint(Sketcher.Constraint("Horizontal", 7))
sketch15.addConstraint(Sketcher.Constraint("Vertical", 8))
sketch15.addConstraint(Sketcher.Constraint("Equal", 4, 9))
sketch15.addConstraint(Sketcher.Constraint("Equal", 9, 10))
sketch15.addConstraint(Sketcher.Constraint("Equal", 10, 11))
sketch15.addConstraint(Sketcher.Constraint("Horizontal", 4, 3, 9, 3))
sketch15.addConstraint(Sketcher.Constraint("Horizontal", 10, 3, 11, 3))
sketch15.addConstraint(Sketcher.Constraint("Vertical", 4, 3, 10, 3))
sketch15.addConstraint(Sketcher.Constraint("Vertical", 9, 3, 11, 3))
sketch15.addConstraint(Sketcher.Constraint("Diameter", 4, 3.6))
sketch15.addConstraint(Sketcher.Constraint("DistanceX", 5, 2, 5, 1, 40.3))
sketch15.addConstraint(Sketcher.Constraint("DistanceY", 6, 2, 6, 1, 1.5))
sketch15.addConstraint(Sketcher.Constraint("DistanceY", 5, 2, 0, 2, 1.0))
sketch15.addConstraint(Sketcher.Constraint("DistanceX", 1, 1, 1, 2, 98.17))
sketch15.addConstraint(Sketcher.Constraint("DistanceY", 0, 1, 0, 2, 59.93))
sketch15.addConstraint(Sketcher.Constraint("DistanceX", -1, 1, 9, 3, 133.7))
sketch15.addConstraint(Sketcher.Constraint("DistanceY", 10, 3, -1, 1, 5.3))
sketch15.addConstraint(Sketcher.Constraint("DistanceX", -1, 1, 1, 2, 136.5))
sketch15.addConstraint(Sketcher.Constraint("DistanceY", 2, 2, -1, 1, 7.9))
sketch15.addConstraint(Sketcher.Constraint("DistanceX", 0, 2, 5, 2, 7.8))
sketch15.addConstraint(Sketcher.Constraint("DistanceX", -1, 1, 4, 3, 40.82))
sketch15.addConstraint(Sketcher.Constraint("DistanceY", -1, 1, 4, 3, 49.59))
pad15 = doc.addObject("PartDesign::Pad", "Pad014")
body.addObject(pad15)
pad15.Profile = sketch15
pad15.Length = 1.6

# Sketch on XY plane
sketch16 = doc.addObject("Sketcher::SketchObject", "Sketch015")
body.addObject(sketch16)
sketch16.AttachmentSupport = (doc.XY_Plane, [""])
sketch16.MapMode = "FlatFace"
sketch16.AttachmentOffset = App.Placement(App.Vector(0, 0, -7.5), App.Rotation())
sketch16.addGeometry(Part.LineSegment(App.Vector(86.2, 50.33, 0), App.Vector(86.2, 52.03, 0)), False)
sketch16.addGeometry(Part.LineSegment(App.Vector(86.2, 52.03, 0), App.Vector(127.2, 52.03, 0)), False)
sketch16.addGeometry(Part.LineSegment(App.Vector(127.2, 52.03, 0), App.Vector(127.2, 50.33, 0)), False)
sketch16.addGeometry(Part.LineSegment(App.Vector(127.2, 50.33, 0), App.Vector(86.2, 50.33, 0)), False)
sketch16.addConstraint(Sketcher.Constraint("Coincident", 0, 2, 1, 1))
sketch16.addConstraint(Sketcher.Constraint("Coincident", 1, 2, 2, 1))
sketch16.addConstraint(Sketcher.Constraint("Coincident", 2, 2, 3, 1))
sketch16.addConstraint(Sketcher.Constraint("Coincident", 3, 2, 0, 1))
sketch16.addConstraint(Sketcher.Constraint("Vertical", 0))
sketch16.addConstraint(Sketcher.Constraint("Horizontal", 1))
sketch16.addConstraint(Sketcher.Constraint("Vertical", 2))
sketch16.addConstraint(Sketcher.Constraint("Horizontal", 3))
sketch16.addConstraint(Sketcher.Constraint("DistanceX", 1, 1, 1, 2, 41.0))
sketch16.addConstraint(Sketcher.Constraint("DistanceY", 0, 1, 0, 2, 1.7))
sketch16.addConstraint(Sketcher.Constraint("DistanceX", -1, 1, 0, 2, 86.2))
sketch16.addConstraint(Sketcher.Constraint("DistanceY", -1, 1, 0, 2, 52.03))
pad16 = doc.addObject("PartDesign::Pad", "Pad015")
body.addObject(pad16)
pad16.Profile = sketch16
pad16.Length = 4.4
pad16.Reversed = True

# Sketch on XY plane
sketch17 = doc.addObject("Sketcher::SketchObject", "Sketch016")
body.addObject(sketch17)
sketch17.AttachmentSupport = (doc.XY_Plane, [""])
sketch17.MapMode = "FlatFace"
sketch17.AttachmentOffset = App.Placement(App.Vector(0, 0, -7.5), App.Rotation())
sketch17.addGeometry(Part.LineSegment(App.Vector(38.915, 2.1, 0), App.Vector(38.915, 42.1, 0)), False)
sketch17.addGeometry(Part.LineSegment(App.Vector(38.915, 42.1, 0), App.Vector(135.915, 42.1, 0)), False)
sketch17.addGeometry(Part.LineSegment(App.Vector(135.915, 42.1, 0), App.Vector(135.915, 2.1, 0)), False)
sketch17.addGeometry(Part.LineSegment(App.Vector(135.915, 2.1, 0), App.Vector(38.915, 2.1, 0)), False)
sketch17.addConstraint(Sketcher.Constraint("Coincident", 0, 2, 1, 1))
sketch17.addConstraint(Sketcher.Constraint("Coincident", 1, 2, 2, 1))
sketch17.addConstraint(Sketcher.Constraint("Coincident", 2, 2, 3, 1))
sketch17.addConstraint(Sketcher.Constraint("Coincident", 3, 2, 0, 1))
sketch17.addConstraint(Sketcher.Constraint("Vertical", 0))
sketch17.addConstraint(Sketcher.Constraint("Horizontal", 1))
sketch17.addConstraint(Sketcher.Constraint("Vertical", 2))
sketch17.addConstraint(Sketcher.Constraint("Horizontal", 3))
sketch17.addConstraint(Sketcher.Constraint("DistanceX", 1, 1, 1, 2, 97.0))
sketch17.addConstraint(Sketcher.Constraint("DistanceY", 0, 1, 0, 2, 40.0))
sketch17.addConstraint(Sketcher.Constraint("DistanceY", -1, 1, 0, 2, 42.1))
sketch17.addConstraint(Sketcher.Constraint("DistanceX", -1, 1, 0, 2, 38.915))
pad17 = doc.addObject("PartDesign::Pad", "Pad016")
body.addObject(pad17)
pad17.Profile = sketch17
pad17.Length = 9.5
pad17.Reversed = True

doc.recompute()
